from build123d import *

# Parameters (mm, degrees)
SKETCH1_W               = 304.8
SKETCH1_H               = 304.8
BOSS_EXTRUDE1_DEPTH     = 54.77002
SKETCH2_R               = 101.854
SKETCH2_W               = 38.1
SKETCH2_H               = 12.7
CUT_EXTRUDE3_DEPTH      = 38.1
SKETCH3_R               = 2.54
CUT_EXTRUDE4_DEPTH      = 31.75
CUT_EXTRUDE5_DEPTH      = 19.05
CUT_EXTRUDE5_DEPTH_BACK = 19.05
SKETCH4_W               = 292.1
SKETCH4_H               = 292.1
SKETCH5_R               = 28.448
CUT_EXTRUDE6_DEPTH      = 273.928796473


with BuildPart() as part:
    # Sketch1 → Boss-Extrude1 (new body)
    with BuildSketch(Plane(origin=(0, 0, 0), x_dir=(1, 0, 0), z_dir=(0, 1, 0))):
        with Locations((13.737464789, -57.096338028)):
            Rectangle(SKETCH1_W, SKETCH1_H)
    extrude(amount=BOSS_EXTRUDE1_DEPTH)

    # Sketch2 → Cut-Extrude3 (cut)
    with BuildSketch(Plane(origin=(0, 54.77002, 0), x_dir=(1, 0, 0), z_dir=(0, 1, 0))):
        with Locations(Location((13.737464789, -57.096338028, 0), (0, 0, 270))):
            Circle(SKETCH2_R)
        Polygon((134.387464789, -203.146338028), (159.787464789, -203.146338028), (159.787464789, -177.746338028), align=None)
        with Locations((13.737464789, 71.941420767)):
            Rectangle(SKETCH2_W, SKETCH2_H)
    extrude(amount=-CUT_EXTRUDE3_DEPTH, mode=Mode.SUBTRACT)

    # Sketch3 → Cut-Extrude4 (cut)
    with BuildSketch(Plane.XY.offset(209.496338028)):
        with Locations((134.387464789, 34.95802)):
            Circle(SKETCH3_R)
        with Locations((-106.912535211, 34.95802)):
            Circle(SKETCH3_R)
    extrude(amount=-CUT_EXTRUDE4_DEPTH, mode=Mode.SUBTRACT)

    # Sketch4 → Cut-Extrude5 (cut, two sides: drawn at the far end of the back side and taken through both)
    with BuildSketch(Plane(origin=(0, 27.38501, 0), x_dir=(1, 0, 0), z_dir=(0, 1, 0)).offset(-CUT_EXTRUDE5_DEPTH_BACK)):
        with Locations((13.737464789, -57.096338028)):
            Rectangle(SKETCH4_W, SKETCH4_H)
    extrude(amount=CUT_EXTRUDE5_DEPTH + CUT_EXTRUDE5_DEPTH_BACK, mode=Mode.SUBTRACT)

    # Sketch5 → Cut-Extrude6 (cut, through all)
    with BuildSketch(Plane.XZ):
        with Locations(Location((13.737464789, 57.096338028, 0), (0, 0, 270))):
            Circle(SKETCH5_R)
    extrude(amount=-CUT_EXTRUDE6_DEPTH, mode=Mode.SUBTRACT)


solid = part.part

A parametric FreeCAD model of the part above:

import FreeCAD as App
import Part
import Sketcher

V = App.Vector
Q = App.Units.Quantity


def add_polygon(sketch, points):
    """Adds a closed chain of lines whose ends are joined by coincident constraints."""
    first, n = sketch.GeometryCount, len(points)
    for a, b in zip(points, points[1:] + points[:1]):
        sketch.addGeometry(Part.LineSegment(App.Vector(*a, 0), App.Vector(*b, 0)), False)
    for i in range(n):
        sketch.addConstraint(Sketcher.Constraint("Coincident", first + i, 2, first + (i + 1) % n, 1))

doc = App.newDocument("Part")
body = doc.addObject("PartDesign::Body", "Body")

# Sketch on XZ plane
sketch1 = body.newObject("Sketcher::SketchObject", "Sketch")
sketch1.AttachmentSupport = (doc.getObject("XZ_Plane"), [""])
sketch1.MapMode = "FlatFace"
add_polygon(sketch1, [(-139, -95), (-139, 209), (166, 209), (166, -95)])  # lines 0-3
sketch1.addConstraint(Sketcher.Constraint("Vertical", 0))
sketch1.addConstraint(Sketcher.Constraint("Horizontal", 1))
sketch1.addConstraint(Sketcher.Constraint("Vertical", 2))
sketch1.addConstraint(Sketcher.Constraint("Horizontal", 3))
sketch1.addConstraint(Sketcher.Constraint("Equal", 3, 0))
sketch1.addConstraint(Sketcher.Constraint("DistanceX", 1, 1, 1, 2, Q("12 in")))
sketch1.addConstraint(Sketcher.Constraint("DistanceY", -1, 1, 0, 2, 209.496338))
sketch1.addConstraint(Sketcher.Constraint("DistanceX", 0, 2, -1, 1, 138.662535))
pad1 = body.newObject("PartDesign::Pad", "Pad")
pad1.Profile = sketch1
pad1.Length = Q("2.1563 in")
pad1.Reversed = True

# Sketch on XZ plane
sketch2 = body.newObject("Sketcher::SketchObject", "Sketch001")
sketch2.AttachmentSupport = (doc.getObject("XZ_Plane"), [""])
sketch2.MapMode = "FlatFace"
sketch2.AttachmentOffset = App.Placement(V(0, 0, -2.1563 * 25.4), App.Rotation())
sketch2.addGeometry(Part.Circle(V(14, 57, 0), V(0, 0, 1), 102), False)  # 0
add_polygon(sketch2, [(134, 203), (160, 203), (160, 178)])  # lines 1-3
add_polygon(sketch2, [(-5, -78), (-5, -66), (33, -66), (33, -78)])  # lines 4-7
sketch2.addConstraint(Sketcher.Constraint("Horizontal", 1))
sketch2.addConstraint(Sketcher.Constraint("Vertical", 2))
sketch2.addConstraint(Sketcher.Constraint("Vertical", 4))
sketch2.addConstraint(Sketcher.Constraint("Horizontal", 5))
sketch2.addConstraint(Sketcher.Constraint("Vertical", 6))
sketch2.addConstraint(Sketcher.Constraint("Horizontal", 7))
sketch2.addConstraint(Sketcher.Constraint("Equal", 1, 2))
sketch2.addConstraint(Sketcher.Constraint("Diameter", 0, Q("8.02 in")))
sketch2.addConstraint(Sketcher.Constraint("DistanceX", 1, 1, 1, 2, Q("1 in")))
sketch2.addConstraint(Sketcher.Constraint("DistanceX", 5, 1, 5, 2, Q("1.5 in")))
sketch2.addConstraint(Sketcher.Constraint("DistanceY", 4, 1, 4, 2, Q("0.5 in")))
sketch2.addConstraint(Sketcher.Constraint("DistanceX", 5, 2, 2, 2, Q("5 in")))
sketch2.addConstraint(Sketcher.Constraint("DistanceX", 0, 3, 1, 2, Q("5.75 in")))
sketch2.addConstraint(Sketcher.Constraint("DistanceY", 0, 3, 1, 2, Q("5.75 in")))
sketch2.addConstraint(Sketcher.Constraint("DistanceY", -1, 1, 0, 3, 57.096338))
sketch2.addConstraint(Sketcher.Constraint("DistanceY", 4, 2, -1, 1, 65.591421))
sketch2.addConstraint(Sketcher.Constraint("DistanceX", -1, 1, 0, 3, 13.737465))
pocket1 = body.newObject("PartDesign::Pocket", "Pocket")
pocket1.Profile = sketch2
pocket1.Length = Q("1.5 in")
pocket1.Reversed = True

# Sketch on XY plane
sketch3 = body.newObject("Sketcher::SketchObject", "Sketch002")
sketch3.AttachmentSupport = (doc.getObject("XY_Plane"), [""])
sketch3.MapMode = "FlatFace"
sketch3.AttachmentOffset = App.Placement(V(0, 0, 209.496338), App.Rotation())
sketch3.addGeometry(Part.Circle(V(134.4, 35, 0), V(0, 0, 1), 2.5), False)
sketch3.addGeometry(Part.Circle(V(-106.9, 35, 0), V(0, 0, 1), 2.5), False)
sketch3.addConstraint(Sketcher.Constraint("Equal", 0, 1))
sketch3.addConstraint(Sketcher.Constraint("Horizontal", 0, 3, 1, 3))
sketch3.addConstraint(Sketcher.Constraint("Diameter", 0, Q("0.2 in")))
sketch3.addConstraint(Sketcher.Constraint("DistanceX", 1, 3, 0, 3, Q("9.5 in")))
sketch3.addConstraint(Sketcher.Constraint("DistanceY", -1, 1, 0, 3, Q("1.3763 in")))
sketch3.addConstraint(Sketcher.Constraint("DistanceX", -1, 1, 0, 3, 134.387465))
pocket2 = body.newObject("PartDesign::Pocket", "Pocket001")
pocket2.Profile = sketch3
pocket2.Length = Q("1.25 in")

# Sketch on XZ plane
sketch4 = body.newObject("Sketcher::SketchObject", "Sketch003")
sketch4.AttachmentSupport = (doc.getObject("XZ_Plane"), [""])
sketch4.MapMode = "FlatFace"
sketch4.AttachmentOffset = App.Placement(V(0, 0, -27.38501), App.Rotation())
add_polygon(sketch4, [(-132, -89), (-132, 203), (160, 203), (160, -89)])  # lines 0-3
sketch4.addConstraint(Sketcher.Constraint("Vertical", 0))
sketch4.addConstraint(Sketcher.Constraint("Horizontal", 1))
sketch4.addConstraint(Sketcher.Constraint("Vertical", 2))
sketch4.addConstraint(Sketcher.Constraint("Horizontal", 3))
sketch4.addConstraint(Sketcher.Constraint("Equal", 3, 0))
sketch4.addConstraint(Sketcher.Constraint("DistanceX", 1, 1, 1, 2, Q("11.5 in")))
sketch4.addConstraint(Sketcher.Constraint("DistanceY", -1, 1, 0, 2, 203.146338))
sketch4.addConstraint(Sketcher.Constraint("DistanceX", 0, 2, -1, 1, 132.312535))
pocket3 = body.newObject("PartDesign::Pocket", "Pocket002")
pocket3.Profile = sketch4
pocket3.Type = "TwoLengths"
pocket3.Length = Q("0.75 in")
pocket3.Length2 = Q("0.75 in")

# Sketch on XZ plane
sketch5 = body.newObject("Sketcher::SketchObject", "Sketch004")
sketch5.AttachmentSupport = (doc.getObject("XZ_Plane"), [""])
sketch5.MapMode = "FlatFace"
sketch5.addGeometry(Part.Circle(V(14, 57, 0), V(0, 0, 1), 28), False)
sketch5.addConstraint(Sketcher.Constraint("Diameter", 0, Q("2.24 in")))
sketch5.addConstraint(Sketcher.Constraint("DistanceY", -1, 1, 0, 3, 57.096338))
sketch5.addConstraint(Sketcher.Constraint("DistanceX", -1, 1, 0, 3, 13.737465))
pocket4 = body.newObject("PartDesign::Pocket", "Pocket003")
pocket4.Profile = sketch5
pocket4.Type = "ThroughAll"

doc.recompute()
